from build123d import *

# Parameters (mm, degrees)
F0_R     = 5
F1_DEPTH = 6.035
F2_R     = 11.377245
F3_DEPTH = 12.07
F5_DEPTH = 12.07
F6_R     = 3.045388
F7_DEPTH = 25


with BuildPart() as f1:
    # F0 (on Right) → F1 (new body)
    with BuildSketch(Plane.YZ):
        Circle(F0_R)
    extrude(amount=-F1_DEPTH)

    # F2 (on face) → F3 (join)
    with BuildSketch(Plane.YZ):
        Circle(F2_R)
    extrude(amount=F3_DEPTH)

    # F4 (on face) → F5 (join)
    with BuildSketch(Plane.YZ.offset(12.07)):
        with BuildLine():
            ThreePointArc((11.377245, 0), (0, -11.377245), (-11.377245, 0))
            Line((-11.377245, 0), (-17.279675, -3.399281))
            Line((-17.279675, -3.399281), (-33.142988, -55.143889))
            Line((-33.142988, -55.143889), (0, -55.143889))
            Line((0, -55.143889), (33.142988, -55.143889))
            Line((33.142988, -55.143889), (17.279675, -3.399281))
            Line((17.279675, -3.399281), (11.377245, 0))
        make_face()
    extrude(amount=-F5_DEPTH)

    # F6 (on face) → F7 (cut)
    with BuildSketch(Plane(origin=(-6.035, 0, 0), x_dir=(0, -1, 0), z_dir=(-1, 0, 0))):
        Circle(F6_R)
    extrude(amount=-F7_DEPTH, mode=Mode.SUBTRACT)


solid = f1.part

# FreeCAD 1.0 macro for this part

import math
import FreeCAD as App
import Part
import Sketcher

V = App.Vector
Q = App.Units.Quantity

doc = App.newDocument("Part")
body = doc.addObject("PartDesign::Body", "Body")

# Sketch on YZ plane
sketch1 = doc.addObject("Sketcher::SketchObject", "Sketch")
body.addObject(sketch1)
sketch1.AttachmentSupport = (doc.YZ_Plane, [""])
sketch1.MapMode = "FlatFace"
sketch1.addGeometry(Part.Circle(V(0, 0, 0), V(0, 0, 1), 5), False)
sketch1.addConstraint([
    Sketcher.Constraint("Coincident", 0, 3, -1, 1),
    Sketcher.Constraint("Diameter", 0, Q("10 mm")),
])
pad1 = doc.addObject("PartDesign::Pad", "Pad")
body.addObject(pad1)
pad1.Profile = sketch1
pad1.Length = 6.035
pad1.Reversed = True

# Sketch on YZ plane
sketch2 = doc.addObject("Sketcher::SketchObject", "Sketch001")
body.addObject(sketch2)
sketch2.AttachmentSupport = (doc.YZ_Plane, [""])
sketch2.MapMode = "FlatFace"
sketch2.addGeometry(Part.Circle(V(0, 0, 0), V(0, 0, 1), 11), False)
sketch2.addConstraint([
    Sketcher.Constraint("Coincident", 0, 3, -1, 1),
    Sketcher.Constraint("Diameter", 0, Q("22.75449 mm")),
])
pad2 = doc.addObject("PartDesign::Pad", "Pad001")
body.addObject(pad2)
pad2.Profile = sketch2
pad2.Length = 12.07

# Sketch on YZ plane
sketch3 = doc.addObject("Sketcher::SketchObject", "Sketch002")
body.addObject(sketch3)
sketch3.AttachmentSupport = (doc.YZ_Plane, [""])
sketch3.MapMode = "FlatFace"
sketch3.AttachmentOffset = App.Placement(V(0, 0, 12.07), App.Rotation())
sketch3.addGeometry([
    Part.ArcOfCircle(Part.Circle(V(0, 0, 0), V(0, 0, 1), 11), math.radians(180), math.radians(360)),  # 0
    Part.LineSegment(V(-11, 0, 0), V(-17, -3, 0)),  # 1
    Part.LineSegment(V(-17, -3, 0), V(-33, -55, 0)),  # 2
    Part.LineSegment(V(-33, -55, 0), V(33, -55, 0)),  # 3
    Part.LineSegment(V(33, -55, 0), V(17, -3, 0)),  # 4
    Part.LineSegment(V(17, -3, 0), V(11, 0, 0)),  # 5
], False)
sketch3.addConstraint([
    Sketcher.Constraint("Coincident", 0, 1, 1, 1),
    Sketcher.Constraint("Coincident", 1, 2, 2, 1),
    Sketcher.Constraint("Coincident", 2, 2, 3, 1),
    Sketcher.Constraint("Coincident", 3, 2, 4, 1),
    Sketcher.Constraint("Coincident", 4, 2, 5, 1),
    Sketcher.Constraint("Coincident", 5, 2, 0, 2),
    Sketcher.Constraint("Horizontal", 3),
    Sketcher.Constraint("Coincident", 0, 3, -1, 1),
    Sketcher.Constraint("Symmetric", 1, 2, 4, 2, -2),
    Sketcher.Constraint("PointOnObject", 0, 1, -1),
    Sketcher.Constraint("PointOnObject", 5, 2, -1),
    Sketcher.Constraint("Equal", 2, 4),
    Sketcher.Constraint("Radius", 0, Q("11.377245 mm")),
    Sketcher.Constraint("Distance", 1, Q("6.811299 mm")),
    Sketcher.Constraint("DistanceX", 3, 1, 3, 2, Q("66.285976 mm")),
    Sketcher.Constraint("DistanceY", 1, 2, -1, 1, Q("3.399281 mm")),
    Sketcher.Constraint("DistanceY", 2, 2, -1, 1, Q("55.143889 mm")),
])
pad3 = doc.addObject("PartDesign::Pad", "Pad002")
body.addObject(pad3)
pad3.Profile = sketch3
pad3.Length = 12.07
pad3.Reversed = True

# Sketch on YZ plane
sketch4 = doc.addObject("Sketcher::SketchObject", "Sketch003")
body.addObject(sketch4)
sketch4.AttachmentSupport = (doc.YZ_Plane, [""])
sketch4.MapMode = "FlatFace"
sketch4.AttachmentOffset = App.Placement(V(0, 0, -6.035), App.Rotation())
sketch4.addGeometry(Part.Circle(V(0, 0, 0), V(0, 0, 1), 3), False)
sketch4.addConstraint([
    Sketcher.Constraint("Coincident", 0, 3, -1, 1),
    Sketcher.Constraint("Diameter", 0, Q("6.090776 mm")),
])
pocket1 = doc.addObject("PartDesign::Pocket", "Pocket")
body.addObject(pocket1)
pocket1.Profile = sketch4
pocket1.Length = 25
pocket1.Reversed = True

doc.recompute()
